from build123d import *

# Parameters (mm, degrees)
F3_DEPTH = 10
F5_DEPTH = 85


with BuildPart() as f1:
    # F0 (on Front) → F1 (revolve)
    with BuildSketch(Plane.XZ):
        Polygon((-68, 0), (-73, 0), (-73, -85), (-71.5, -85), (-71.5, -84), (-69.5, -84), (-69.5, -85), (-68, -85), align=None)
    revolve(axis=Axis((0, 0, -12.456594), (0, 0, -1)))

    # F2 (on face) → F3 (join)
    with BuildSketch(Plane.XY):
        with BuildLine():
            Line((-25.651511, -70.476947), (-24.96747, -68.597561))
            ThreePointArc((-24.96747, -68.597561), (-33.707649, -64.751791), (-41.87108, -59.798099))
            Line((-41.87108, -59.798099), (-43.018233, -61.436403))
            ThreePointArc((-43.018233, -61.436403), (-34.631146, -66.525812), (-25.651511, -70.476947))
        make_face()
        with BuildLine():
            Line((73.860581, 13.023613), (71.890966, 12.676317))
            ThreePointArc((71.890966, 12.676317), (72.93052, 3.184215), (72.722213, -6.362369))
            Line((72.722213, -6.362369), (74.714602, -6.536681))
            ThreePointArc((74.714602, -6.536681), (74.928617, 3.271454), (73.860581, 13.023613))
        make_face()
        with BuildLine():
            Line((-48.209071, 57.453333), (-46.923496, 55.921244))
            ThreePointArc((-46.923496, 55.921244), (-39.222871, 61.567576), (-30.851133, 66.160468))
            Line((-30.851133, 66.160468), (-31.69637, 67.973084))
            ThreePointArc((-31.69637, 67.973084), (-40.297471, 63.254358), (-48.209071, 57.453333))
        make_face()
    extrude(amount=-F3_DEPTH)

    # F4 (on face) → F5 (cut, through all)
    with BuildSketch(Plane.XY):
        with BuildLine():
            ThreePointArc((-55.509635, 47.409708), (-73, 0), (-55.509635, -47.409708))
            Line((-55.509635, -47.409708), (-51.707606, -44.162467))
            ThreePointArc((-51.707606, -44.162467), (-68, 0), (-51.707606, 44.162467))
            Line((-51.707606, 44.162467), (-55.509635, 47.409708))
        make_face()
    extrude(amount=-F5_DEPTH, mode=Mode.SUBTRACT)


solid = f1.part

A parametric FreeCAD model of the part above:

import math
import FreeCAD as App
import Part
import Sketcher
from FreeCAD import Vector
Q = App.Units.Quantity

doc = App.newDocument("Part")
body = doc.addObject("PartDesign::Body", "Body")

sketch1 = body.newObject("Sketcher::SketchObject", "Sketch")
sketch1.AttachmentSupport = (doc.getObject("XZ_Plane"), [""])
sketch1.MapMode = "FlatFace"
sketch1.addGeometry(Part.LineSegment(Vector(-68, 0, 0), Vector(-73, 0, 0)), False)
sketch1.addGeometry(Part.LineSegment(Vector(-73, 0, 0), Vector(-73, -85, 0)), False)
sketch1.addGeometry(Part.LineSegment(Vector(-73, -85, 0), Vector(-71.5, -85, 0)), False)
sketch1.addGeometry(Part.LineSegment(Vector(-71.5, -85, 0), Vector(-71.5, -84, 0)), False)
sketch1.addGeometry(Part.LineSegment(Vector(-71.5, -84, 0), Vector(-69.5, -84, 0)), False)
sketch1.addGeometry(Part.LineSegment(Vector(-69.5, -84, 0), Vector(-69.5, -85, 0)), False)
sketch1.addGeometry(Part.LineSegment(Vector(-69.5, -85, 0), Vector(-68, -85, 0)), False)
sketch1.addGeometry(Part.LineSegment(Vector(-68, -85, 0), Vector(-68, 0, 0)), False)
sketch1.addConstraint(Sketcher.Constraint("Coincident", 0, 2, 1, 1))
sketch1.addConstraint(Sketcher.Constraint("Coincident", 1, 2, 2, 1))
sketch1.addConstraint(Sketcher.Constraint("Coincident", 2, 2, 3, 1))
sketch1.addConstraint(Sketcher.Constraint("Coincident", 3, 2, 4, 1))
sketch1.addConstraint(Sketcher.Constraint("Coincident", 4, 2, 5, 1))
sketch1.addConstraint(Sketcher.Constraint("Coincident", 5, 2, 6, 1))
sketch1.addConstraint(Sketcher.Constraint("Coincident", 6, 2, 7, 1))
sketch1.addConstraint(Sketcher.Constraint("Coincident", 7, 2, 0, 1))
sketch1.addConstraint(Sketcher.Constraint("Horizontal", 0))
sketch1.addConstraint(Sketcher.Constraint("Vertical", 1))
sketch1.addConstraint(Sketcher.Constraint("Horizontal", 2))
sketch1.addConstraint(Sketcher.Constraint("Vertical", 3))
sketch1.addConstraint(Sketcher.Constraint("Horizontal", 4))
sketch1.addConstraint(Sketcher.Constraint("Vertical", 5))
sketch1.addConstraint(Sketcher.Constraint("Horizontal", 6))
sketch1.addConstraint(Sketcher.Constraint("Vertical", 7))
sketch1.addConstraint(Sketcher.Constraint("PointOnObject", 0, 2, -1))
sketch1.addConstraint(Sketcher.Constraint("Horizontal", 2, 2, 5, 2))
sketch1.addConstraint(Sketcher.Constraint("Equal", 2, 6))
sketch1.addConstraint(Sketcher.Constraint("DistanceX", 0, 2, 0, 1, Q("5 mm")))
sketch1.addConstraint(Sketcher.Constraint("DistanceX", 4, 1, 4, 2, Q("2 mm")))
sketch1.addConstraint(Sketcher.Constraint("DistanceY", 1, 2, 1, 1, Q("85 mm")))
sketch1.addConstraint(Sketcher.Constraint("DistanceY", 3, 1, 3, 2, Q("1 mm")))
sketch1.addConstraint(Sketcher.Constraint("DistanceX", 0, 2, -1, 1, Q("73 mm")))
revolution = body.newObject("PartDesign::Revolution", "Revolution")
revolution.Profile = sketch1
revolution.ReferenceAxis = (sketch1, ["V_Axis"])
revolution.Angle = 360

sketch2 = body.newObject("Sketcher::SketchObject", "Sketch001")
sketch2.AttachmentSupport = (doc.getObject("XY_Plane"), [""])
sketch2.MapMode = "FlatFace"
sketch2.addGeometry(Part.LineSegment(Vector(-25.651511, -70.476947, 0), Vector(-24.96747, -68.597561, 0)), False)
sketch2.addGeometry(Part.ArcOfCircle(Part.Circle(Vector(-0.000031, -0.000056, 0), Vector(0, 0, 1), 72.999936), math.radians(-125.000006), math.radians(-109.999992)), False)
sketch2.addGeometry(Part.LineSegment(Vector(-41.87108, -59.798099, 0), Vector(-43.018233, -61.436403, 0)), False)
sketch2.addGeometry(Part.ArcOfCircle(Part.Circle(Vector(0.000036, 0.000064, 0), Vector(0, 0, 1), 75.000073), math.radians(-124.999995), math.radians(-110.000009)), False)
sketch2.addGeometry(Part.LineSegment(Vector(73.860581, 13.023613, 0), Vector(71.890966, 12.676317, 0)), False)
sketch2.addGeometry(Part.ArcOfCircle(Part.Circle(Vector(-0.000025, -0.000001, 0), Vector(0, 0, 1), 73.000025), math.radians(-4.999997), math.radians(9.999997)), False)
sketch2.addGeometry(Part.LineSegment(Vector(72.722213, -6.362369, 0), Vector(74.714602, -6.536681, 0)), False)
sketch2.addGeometry(Part.ArcOfCircle(Part.Circle(Vector(0.000094, 0.000003, 0), Vector(0, 0, 1), 74.999906), math.radians(-5.000009), math.radians(10.00001)), False)
sketch2.addGeometry(Part.LineSegment(Vector(-48.209071, 57.453333, 0), Vector(-46.923496, 55.921244, 0)), False)
sketch2.addGeometry(Part.ArcOfCircle(Part.Circle(Vector(-0.000025, 0.000035, 0), Vector(0, 0, 1), 72.999957), math.radians(114.999994), math.radians(130.000003)), False)
sketch2.addGeometry(Part.LineSegment(Vector(-30.851133, 66.160468, 0), Vector(-31.69637, 67.973084, 0)), False)
sketch2.addGeometry(Part.ArcOfCircle(Part.Circle(Vector(0.000015, -0.000022, 0), Vector(0, 0, 1), 75.000027), math.radians(115.000003), math.radians(129.999998)), False)
sketch2.addConstraint(Sketcher.Constraint("Coincident", 0, 2, 1, 2))
sketch2.addConstraint(Sketcher.Constraint("Coincident", 1, 1, 2, 1))
sketch2.addConstraint(Sketcher.Constraint("Coincident", 2, 2, 3, 1))
sketch2.addConstraint(Sketcher.Constraint("Coincident", 3, 2, 0, 1))
sketch2.addConstraint(Sketcher.Constraint("Coincident", 4, 2, 5, 2))
sketch2.addConstraint(Sketcher.Constraint("Coincident", 5, 1, 6, 1))
sketch2.addConstraint(Sketcher.Constraint("Coincident", 6, 2, 7, 1))
sketch2.addConstraint(Sketcher.Constraint("Coincident", 7, 2, 4, 1))
sketch2.addConstraint(Sketcher.Constraint("Coincident", 8, 2, 9, 2))
sketch2.addConstraint(Sketcher.Constraint("Coincident", 9, 1, 10, 1))
sketch2.addConstraint(Sketcher.Constraint("Coincident", 10, 2, 11, 1))
sketch2.addConstraint(Sketcher.Constraint("Coincident", 11, 2, 8, 1))
sketch2.addConstraint(Sketcher.Constraint("PointOnObject", 5, 3, -1))
sketch2.addConstraint(Sketcher.Constraint("Distance", 0, Q("2.000001 mm")))
sketch2.addConstraint(Sketcher.Constraint("Distance", 2, Q("2 mm")))
sketch2.addConstraint(Sketcher.Constraint("Distance", 4, Q("1.999999 mm")))
sketch2.addConstraint(Sketcher.Constraint("Distance", 6, Q("2 mm")))
sketch2.addConstraint(Sketcher.Constraint("Distance", 8, Q("2 mm")))
sketch2.addConstraint(Sketcher.Constraint("Distance", 10, Q("2.000001 mm")))
sketch2.addConstraint(Sketcher.Constraint("Radius", 1, Q("72.999936 mm")))
sketch2.addConstraint(Sketcher.Constraint("Radius", 3, Q("75.000073 mm")))
sketch2.addConstraint(Sketcher.Constraint("Radius", 5, Q("73.000025 mm")))
sketch2.addConstraint(Sketcher.Constraint("Radius", 7, Q("74.999906 mm")))
sketch2.addConstraint(Sketcher.Constraint("Radius", 9, Q("72.999957 mm")))
sketch2.addConstraint(Sketcher.Constraint("Radius", 11, Q("75.000027 mm")))
sketch2.addConstraint(Sketcher.Constraint("DistanceY", 1, 1, -1, 1, Q("59.798099 mm")))
sketch2.addConstraint(Sketcher.Constraint("DistanceX", -1, 1, 6, 2, Q("74.714602 mm")))
sketch2.addConstraint(Sketcher.Constraint("DistanceY", 2, 2, 5, 3, Q("61.436402 mm")))
sketch2.addConstraint(Sketcher.Constraint("DistanceX", 11, 3, 5, 1, Q("72.722198 mm")))
sketch2.addConstraint(Sketcher.Constraint("DistanceY", 1, 3, 8, 2, Q("55.9213 mm")))
sketch2.addConstraint(Sketcher.Constraint("DistanceX", 11, 2, 10, 2, Q("16.512701 mm")))
sketch2.addConstraint(Sketcher.Constraint("DistanceX", 0, 2, -1, 1, Q("24.96747 mm")))
sketch2.addConstraint(Sketcher.Constraint("DistanceY", 0, 2, -1, 1, Q("68.597561 mm")))
sketch2.addConstraint(Sketcher.Constraint("DistanceX", 1, 1, -1, 1, Q("41.87108 mm")))
sketch2.addConstraint(Sketcher.Constraint("DistanceX", 3, 2, -1, 1, Q("25.651511 mm")))
sketch2.addConstraint(Sketcher.Constraint("DistanceY", 5, 1, -1, 1, Q("6.362369 mm")))
sketch2.addConstraint(Sketcher.Constraint("DistanceY", 6, 2, -1, 1, Q("6.536681 mm")))
sketch2.addConstraint(Sketcher.Constraint("DistanceX", -1, 1, 7, 2, Q("73.860581 mm")))
sketch2.addConstraint(Sketcher.Constraint("DistanceY", -1, 1, 9, 1, Q("66.160468 mm")))
sketch2.addConstraint(Sketcher.Constraint("DistanceX", 10, 2, -1, 1, Q("31.69637 mm")))
sketch2.addConstraint(Sketcher.Constraint("DistanceY", 0, 2, 11, 3, Q("68.597539 mm")))
sketch2.addConstraint(Sketcher.Constraint("DistanceX", 7, 3, 4, 2, Q("71.890872 mm")))
pad1 = body.newObject("PartDesign::Pad", "Pad")
pad1.Profile = sketch2
pad1.Length = 10
pad1.Reversed = True

sketch3 = body.newObject("Sketcher::SketchObject", "Sketch002")
sketch3.AttachmentSupport = (doc.getObject("XY_Plane"), [""])
sketch3.MapMode = "FlatFace"
sketch3.addGeometry(Part.ArcOfCircle(Part.Circle(Vector(0, 0, 0), Vector(0, 0, 1), 73), math.radians(139), math.radians(221)), False)
sketch3.addGeometry(Part.LineSegment(Vector(-55.5, -47.4, 0), Vector(-51.7, -44.2, 0)), False)
sketch3.addGeometry(Part.ArcOfCircle(Part.Circle(Vector(0, 0, 0), Vector(0, 0, 1), 68), math.radians(140), math.radians(220)), False)
sketch3.addGeometry(Part.LineSegment(Vector(-51.7, 44.2, 0), Vector(-55.5, 47.4, 0)), False)
sketch3.addConstraint(Sketcher.Constraint("Coincident", 0, 2, 1, 1))
sketch3.addConstraint(Sketcher.Constraint("Coincident", 1, 2, 2, 2))
sketch3.addConstraint(Sketcher.Constraint("Coincident", 2, 1, 3, 1))
sketch3.addConstraint(Sketcher.Constraint("Coincident", 3, 2, 0, 1))
sketch3.addConstraint(Sketcher.Constraint("Coincident", 0, 3, -1, 1))
sketch3.addConstraint(Sketcher.Constraint("Coincident", 2, 3, -1, 1))
sketch3.addConstraint(Sketcher.Constraint("Vertical", 1, 2, 2, 1))
sketch3.addConstraint(Sketcher.Constraint("Vertical", 0, 2, 3, 2))
sketch3.addConstraint(Sketcher.Constraint("Radius", 0, Q("73 mm")))
sketch3.addConstraint(Sketcher.Constraint("Radius", 2, Q("68 mm")))
sketch3.addConstraint(Sketcher.Constraint("Angle", 1, Q("40.500013 deg")))
sketch3.addConstraint(Sketcher.Constraint("DistanceY", 0, 2, -1, 1, Q("47.409708 mm")))
pocket1 = body.newObject("PartDesign::Pocket", "Pocket")
pocket1.Profile = sketch3
pocket1.Type = "ThroughAll"

doc.recompute()
